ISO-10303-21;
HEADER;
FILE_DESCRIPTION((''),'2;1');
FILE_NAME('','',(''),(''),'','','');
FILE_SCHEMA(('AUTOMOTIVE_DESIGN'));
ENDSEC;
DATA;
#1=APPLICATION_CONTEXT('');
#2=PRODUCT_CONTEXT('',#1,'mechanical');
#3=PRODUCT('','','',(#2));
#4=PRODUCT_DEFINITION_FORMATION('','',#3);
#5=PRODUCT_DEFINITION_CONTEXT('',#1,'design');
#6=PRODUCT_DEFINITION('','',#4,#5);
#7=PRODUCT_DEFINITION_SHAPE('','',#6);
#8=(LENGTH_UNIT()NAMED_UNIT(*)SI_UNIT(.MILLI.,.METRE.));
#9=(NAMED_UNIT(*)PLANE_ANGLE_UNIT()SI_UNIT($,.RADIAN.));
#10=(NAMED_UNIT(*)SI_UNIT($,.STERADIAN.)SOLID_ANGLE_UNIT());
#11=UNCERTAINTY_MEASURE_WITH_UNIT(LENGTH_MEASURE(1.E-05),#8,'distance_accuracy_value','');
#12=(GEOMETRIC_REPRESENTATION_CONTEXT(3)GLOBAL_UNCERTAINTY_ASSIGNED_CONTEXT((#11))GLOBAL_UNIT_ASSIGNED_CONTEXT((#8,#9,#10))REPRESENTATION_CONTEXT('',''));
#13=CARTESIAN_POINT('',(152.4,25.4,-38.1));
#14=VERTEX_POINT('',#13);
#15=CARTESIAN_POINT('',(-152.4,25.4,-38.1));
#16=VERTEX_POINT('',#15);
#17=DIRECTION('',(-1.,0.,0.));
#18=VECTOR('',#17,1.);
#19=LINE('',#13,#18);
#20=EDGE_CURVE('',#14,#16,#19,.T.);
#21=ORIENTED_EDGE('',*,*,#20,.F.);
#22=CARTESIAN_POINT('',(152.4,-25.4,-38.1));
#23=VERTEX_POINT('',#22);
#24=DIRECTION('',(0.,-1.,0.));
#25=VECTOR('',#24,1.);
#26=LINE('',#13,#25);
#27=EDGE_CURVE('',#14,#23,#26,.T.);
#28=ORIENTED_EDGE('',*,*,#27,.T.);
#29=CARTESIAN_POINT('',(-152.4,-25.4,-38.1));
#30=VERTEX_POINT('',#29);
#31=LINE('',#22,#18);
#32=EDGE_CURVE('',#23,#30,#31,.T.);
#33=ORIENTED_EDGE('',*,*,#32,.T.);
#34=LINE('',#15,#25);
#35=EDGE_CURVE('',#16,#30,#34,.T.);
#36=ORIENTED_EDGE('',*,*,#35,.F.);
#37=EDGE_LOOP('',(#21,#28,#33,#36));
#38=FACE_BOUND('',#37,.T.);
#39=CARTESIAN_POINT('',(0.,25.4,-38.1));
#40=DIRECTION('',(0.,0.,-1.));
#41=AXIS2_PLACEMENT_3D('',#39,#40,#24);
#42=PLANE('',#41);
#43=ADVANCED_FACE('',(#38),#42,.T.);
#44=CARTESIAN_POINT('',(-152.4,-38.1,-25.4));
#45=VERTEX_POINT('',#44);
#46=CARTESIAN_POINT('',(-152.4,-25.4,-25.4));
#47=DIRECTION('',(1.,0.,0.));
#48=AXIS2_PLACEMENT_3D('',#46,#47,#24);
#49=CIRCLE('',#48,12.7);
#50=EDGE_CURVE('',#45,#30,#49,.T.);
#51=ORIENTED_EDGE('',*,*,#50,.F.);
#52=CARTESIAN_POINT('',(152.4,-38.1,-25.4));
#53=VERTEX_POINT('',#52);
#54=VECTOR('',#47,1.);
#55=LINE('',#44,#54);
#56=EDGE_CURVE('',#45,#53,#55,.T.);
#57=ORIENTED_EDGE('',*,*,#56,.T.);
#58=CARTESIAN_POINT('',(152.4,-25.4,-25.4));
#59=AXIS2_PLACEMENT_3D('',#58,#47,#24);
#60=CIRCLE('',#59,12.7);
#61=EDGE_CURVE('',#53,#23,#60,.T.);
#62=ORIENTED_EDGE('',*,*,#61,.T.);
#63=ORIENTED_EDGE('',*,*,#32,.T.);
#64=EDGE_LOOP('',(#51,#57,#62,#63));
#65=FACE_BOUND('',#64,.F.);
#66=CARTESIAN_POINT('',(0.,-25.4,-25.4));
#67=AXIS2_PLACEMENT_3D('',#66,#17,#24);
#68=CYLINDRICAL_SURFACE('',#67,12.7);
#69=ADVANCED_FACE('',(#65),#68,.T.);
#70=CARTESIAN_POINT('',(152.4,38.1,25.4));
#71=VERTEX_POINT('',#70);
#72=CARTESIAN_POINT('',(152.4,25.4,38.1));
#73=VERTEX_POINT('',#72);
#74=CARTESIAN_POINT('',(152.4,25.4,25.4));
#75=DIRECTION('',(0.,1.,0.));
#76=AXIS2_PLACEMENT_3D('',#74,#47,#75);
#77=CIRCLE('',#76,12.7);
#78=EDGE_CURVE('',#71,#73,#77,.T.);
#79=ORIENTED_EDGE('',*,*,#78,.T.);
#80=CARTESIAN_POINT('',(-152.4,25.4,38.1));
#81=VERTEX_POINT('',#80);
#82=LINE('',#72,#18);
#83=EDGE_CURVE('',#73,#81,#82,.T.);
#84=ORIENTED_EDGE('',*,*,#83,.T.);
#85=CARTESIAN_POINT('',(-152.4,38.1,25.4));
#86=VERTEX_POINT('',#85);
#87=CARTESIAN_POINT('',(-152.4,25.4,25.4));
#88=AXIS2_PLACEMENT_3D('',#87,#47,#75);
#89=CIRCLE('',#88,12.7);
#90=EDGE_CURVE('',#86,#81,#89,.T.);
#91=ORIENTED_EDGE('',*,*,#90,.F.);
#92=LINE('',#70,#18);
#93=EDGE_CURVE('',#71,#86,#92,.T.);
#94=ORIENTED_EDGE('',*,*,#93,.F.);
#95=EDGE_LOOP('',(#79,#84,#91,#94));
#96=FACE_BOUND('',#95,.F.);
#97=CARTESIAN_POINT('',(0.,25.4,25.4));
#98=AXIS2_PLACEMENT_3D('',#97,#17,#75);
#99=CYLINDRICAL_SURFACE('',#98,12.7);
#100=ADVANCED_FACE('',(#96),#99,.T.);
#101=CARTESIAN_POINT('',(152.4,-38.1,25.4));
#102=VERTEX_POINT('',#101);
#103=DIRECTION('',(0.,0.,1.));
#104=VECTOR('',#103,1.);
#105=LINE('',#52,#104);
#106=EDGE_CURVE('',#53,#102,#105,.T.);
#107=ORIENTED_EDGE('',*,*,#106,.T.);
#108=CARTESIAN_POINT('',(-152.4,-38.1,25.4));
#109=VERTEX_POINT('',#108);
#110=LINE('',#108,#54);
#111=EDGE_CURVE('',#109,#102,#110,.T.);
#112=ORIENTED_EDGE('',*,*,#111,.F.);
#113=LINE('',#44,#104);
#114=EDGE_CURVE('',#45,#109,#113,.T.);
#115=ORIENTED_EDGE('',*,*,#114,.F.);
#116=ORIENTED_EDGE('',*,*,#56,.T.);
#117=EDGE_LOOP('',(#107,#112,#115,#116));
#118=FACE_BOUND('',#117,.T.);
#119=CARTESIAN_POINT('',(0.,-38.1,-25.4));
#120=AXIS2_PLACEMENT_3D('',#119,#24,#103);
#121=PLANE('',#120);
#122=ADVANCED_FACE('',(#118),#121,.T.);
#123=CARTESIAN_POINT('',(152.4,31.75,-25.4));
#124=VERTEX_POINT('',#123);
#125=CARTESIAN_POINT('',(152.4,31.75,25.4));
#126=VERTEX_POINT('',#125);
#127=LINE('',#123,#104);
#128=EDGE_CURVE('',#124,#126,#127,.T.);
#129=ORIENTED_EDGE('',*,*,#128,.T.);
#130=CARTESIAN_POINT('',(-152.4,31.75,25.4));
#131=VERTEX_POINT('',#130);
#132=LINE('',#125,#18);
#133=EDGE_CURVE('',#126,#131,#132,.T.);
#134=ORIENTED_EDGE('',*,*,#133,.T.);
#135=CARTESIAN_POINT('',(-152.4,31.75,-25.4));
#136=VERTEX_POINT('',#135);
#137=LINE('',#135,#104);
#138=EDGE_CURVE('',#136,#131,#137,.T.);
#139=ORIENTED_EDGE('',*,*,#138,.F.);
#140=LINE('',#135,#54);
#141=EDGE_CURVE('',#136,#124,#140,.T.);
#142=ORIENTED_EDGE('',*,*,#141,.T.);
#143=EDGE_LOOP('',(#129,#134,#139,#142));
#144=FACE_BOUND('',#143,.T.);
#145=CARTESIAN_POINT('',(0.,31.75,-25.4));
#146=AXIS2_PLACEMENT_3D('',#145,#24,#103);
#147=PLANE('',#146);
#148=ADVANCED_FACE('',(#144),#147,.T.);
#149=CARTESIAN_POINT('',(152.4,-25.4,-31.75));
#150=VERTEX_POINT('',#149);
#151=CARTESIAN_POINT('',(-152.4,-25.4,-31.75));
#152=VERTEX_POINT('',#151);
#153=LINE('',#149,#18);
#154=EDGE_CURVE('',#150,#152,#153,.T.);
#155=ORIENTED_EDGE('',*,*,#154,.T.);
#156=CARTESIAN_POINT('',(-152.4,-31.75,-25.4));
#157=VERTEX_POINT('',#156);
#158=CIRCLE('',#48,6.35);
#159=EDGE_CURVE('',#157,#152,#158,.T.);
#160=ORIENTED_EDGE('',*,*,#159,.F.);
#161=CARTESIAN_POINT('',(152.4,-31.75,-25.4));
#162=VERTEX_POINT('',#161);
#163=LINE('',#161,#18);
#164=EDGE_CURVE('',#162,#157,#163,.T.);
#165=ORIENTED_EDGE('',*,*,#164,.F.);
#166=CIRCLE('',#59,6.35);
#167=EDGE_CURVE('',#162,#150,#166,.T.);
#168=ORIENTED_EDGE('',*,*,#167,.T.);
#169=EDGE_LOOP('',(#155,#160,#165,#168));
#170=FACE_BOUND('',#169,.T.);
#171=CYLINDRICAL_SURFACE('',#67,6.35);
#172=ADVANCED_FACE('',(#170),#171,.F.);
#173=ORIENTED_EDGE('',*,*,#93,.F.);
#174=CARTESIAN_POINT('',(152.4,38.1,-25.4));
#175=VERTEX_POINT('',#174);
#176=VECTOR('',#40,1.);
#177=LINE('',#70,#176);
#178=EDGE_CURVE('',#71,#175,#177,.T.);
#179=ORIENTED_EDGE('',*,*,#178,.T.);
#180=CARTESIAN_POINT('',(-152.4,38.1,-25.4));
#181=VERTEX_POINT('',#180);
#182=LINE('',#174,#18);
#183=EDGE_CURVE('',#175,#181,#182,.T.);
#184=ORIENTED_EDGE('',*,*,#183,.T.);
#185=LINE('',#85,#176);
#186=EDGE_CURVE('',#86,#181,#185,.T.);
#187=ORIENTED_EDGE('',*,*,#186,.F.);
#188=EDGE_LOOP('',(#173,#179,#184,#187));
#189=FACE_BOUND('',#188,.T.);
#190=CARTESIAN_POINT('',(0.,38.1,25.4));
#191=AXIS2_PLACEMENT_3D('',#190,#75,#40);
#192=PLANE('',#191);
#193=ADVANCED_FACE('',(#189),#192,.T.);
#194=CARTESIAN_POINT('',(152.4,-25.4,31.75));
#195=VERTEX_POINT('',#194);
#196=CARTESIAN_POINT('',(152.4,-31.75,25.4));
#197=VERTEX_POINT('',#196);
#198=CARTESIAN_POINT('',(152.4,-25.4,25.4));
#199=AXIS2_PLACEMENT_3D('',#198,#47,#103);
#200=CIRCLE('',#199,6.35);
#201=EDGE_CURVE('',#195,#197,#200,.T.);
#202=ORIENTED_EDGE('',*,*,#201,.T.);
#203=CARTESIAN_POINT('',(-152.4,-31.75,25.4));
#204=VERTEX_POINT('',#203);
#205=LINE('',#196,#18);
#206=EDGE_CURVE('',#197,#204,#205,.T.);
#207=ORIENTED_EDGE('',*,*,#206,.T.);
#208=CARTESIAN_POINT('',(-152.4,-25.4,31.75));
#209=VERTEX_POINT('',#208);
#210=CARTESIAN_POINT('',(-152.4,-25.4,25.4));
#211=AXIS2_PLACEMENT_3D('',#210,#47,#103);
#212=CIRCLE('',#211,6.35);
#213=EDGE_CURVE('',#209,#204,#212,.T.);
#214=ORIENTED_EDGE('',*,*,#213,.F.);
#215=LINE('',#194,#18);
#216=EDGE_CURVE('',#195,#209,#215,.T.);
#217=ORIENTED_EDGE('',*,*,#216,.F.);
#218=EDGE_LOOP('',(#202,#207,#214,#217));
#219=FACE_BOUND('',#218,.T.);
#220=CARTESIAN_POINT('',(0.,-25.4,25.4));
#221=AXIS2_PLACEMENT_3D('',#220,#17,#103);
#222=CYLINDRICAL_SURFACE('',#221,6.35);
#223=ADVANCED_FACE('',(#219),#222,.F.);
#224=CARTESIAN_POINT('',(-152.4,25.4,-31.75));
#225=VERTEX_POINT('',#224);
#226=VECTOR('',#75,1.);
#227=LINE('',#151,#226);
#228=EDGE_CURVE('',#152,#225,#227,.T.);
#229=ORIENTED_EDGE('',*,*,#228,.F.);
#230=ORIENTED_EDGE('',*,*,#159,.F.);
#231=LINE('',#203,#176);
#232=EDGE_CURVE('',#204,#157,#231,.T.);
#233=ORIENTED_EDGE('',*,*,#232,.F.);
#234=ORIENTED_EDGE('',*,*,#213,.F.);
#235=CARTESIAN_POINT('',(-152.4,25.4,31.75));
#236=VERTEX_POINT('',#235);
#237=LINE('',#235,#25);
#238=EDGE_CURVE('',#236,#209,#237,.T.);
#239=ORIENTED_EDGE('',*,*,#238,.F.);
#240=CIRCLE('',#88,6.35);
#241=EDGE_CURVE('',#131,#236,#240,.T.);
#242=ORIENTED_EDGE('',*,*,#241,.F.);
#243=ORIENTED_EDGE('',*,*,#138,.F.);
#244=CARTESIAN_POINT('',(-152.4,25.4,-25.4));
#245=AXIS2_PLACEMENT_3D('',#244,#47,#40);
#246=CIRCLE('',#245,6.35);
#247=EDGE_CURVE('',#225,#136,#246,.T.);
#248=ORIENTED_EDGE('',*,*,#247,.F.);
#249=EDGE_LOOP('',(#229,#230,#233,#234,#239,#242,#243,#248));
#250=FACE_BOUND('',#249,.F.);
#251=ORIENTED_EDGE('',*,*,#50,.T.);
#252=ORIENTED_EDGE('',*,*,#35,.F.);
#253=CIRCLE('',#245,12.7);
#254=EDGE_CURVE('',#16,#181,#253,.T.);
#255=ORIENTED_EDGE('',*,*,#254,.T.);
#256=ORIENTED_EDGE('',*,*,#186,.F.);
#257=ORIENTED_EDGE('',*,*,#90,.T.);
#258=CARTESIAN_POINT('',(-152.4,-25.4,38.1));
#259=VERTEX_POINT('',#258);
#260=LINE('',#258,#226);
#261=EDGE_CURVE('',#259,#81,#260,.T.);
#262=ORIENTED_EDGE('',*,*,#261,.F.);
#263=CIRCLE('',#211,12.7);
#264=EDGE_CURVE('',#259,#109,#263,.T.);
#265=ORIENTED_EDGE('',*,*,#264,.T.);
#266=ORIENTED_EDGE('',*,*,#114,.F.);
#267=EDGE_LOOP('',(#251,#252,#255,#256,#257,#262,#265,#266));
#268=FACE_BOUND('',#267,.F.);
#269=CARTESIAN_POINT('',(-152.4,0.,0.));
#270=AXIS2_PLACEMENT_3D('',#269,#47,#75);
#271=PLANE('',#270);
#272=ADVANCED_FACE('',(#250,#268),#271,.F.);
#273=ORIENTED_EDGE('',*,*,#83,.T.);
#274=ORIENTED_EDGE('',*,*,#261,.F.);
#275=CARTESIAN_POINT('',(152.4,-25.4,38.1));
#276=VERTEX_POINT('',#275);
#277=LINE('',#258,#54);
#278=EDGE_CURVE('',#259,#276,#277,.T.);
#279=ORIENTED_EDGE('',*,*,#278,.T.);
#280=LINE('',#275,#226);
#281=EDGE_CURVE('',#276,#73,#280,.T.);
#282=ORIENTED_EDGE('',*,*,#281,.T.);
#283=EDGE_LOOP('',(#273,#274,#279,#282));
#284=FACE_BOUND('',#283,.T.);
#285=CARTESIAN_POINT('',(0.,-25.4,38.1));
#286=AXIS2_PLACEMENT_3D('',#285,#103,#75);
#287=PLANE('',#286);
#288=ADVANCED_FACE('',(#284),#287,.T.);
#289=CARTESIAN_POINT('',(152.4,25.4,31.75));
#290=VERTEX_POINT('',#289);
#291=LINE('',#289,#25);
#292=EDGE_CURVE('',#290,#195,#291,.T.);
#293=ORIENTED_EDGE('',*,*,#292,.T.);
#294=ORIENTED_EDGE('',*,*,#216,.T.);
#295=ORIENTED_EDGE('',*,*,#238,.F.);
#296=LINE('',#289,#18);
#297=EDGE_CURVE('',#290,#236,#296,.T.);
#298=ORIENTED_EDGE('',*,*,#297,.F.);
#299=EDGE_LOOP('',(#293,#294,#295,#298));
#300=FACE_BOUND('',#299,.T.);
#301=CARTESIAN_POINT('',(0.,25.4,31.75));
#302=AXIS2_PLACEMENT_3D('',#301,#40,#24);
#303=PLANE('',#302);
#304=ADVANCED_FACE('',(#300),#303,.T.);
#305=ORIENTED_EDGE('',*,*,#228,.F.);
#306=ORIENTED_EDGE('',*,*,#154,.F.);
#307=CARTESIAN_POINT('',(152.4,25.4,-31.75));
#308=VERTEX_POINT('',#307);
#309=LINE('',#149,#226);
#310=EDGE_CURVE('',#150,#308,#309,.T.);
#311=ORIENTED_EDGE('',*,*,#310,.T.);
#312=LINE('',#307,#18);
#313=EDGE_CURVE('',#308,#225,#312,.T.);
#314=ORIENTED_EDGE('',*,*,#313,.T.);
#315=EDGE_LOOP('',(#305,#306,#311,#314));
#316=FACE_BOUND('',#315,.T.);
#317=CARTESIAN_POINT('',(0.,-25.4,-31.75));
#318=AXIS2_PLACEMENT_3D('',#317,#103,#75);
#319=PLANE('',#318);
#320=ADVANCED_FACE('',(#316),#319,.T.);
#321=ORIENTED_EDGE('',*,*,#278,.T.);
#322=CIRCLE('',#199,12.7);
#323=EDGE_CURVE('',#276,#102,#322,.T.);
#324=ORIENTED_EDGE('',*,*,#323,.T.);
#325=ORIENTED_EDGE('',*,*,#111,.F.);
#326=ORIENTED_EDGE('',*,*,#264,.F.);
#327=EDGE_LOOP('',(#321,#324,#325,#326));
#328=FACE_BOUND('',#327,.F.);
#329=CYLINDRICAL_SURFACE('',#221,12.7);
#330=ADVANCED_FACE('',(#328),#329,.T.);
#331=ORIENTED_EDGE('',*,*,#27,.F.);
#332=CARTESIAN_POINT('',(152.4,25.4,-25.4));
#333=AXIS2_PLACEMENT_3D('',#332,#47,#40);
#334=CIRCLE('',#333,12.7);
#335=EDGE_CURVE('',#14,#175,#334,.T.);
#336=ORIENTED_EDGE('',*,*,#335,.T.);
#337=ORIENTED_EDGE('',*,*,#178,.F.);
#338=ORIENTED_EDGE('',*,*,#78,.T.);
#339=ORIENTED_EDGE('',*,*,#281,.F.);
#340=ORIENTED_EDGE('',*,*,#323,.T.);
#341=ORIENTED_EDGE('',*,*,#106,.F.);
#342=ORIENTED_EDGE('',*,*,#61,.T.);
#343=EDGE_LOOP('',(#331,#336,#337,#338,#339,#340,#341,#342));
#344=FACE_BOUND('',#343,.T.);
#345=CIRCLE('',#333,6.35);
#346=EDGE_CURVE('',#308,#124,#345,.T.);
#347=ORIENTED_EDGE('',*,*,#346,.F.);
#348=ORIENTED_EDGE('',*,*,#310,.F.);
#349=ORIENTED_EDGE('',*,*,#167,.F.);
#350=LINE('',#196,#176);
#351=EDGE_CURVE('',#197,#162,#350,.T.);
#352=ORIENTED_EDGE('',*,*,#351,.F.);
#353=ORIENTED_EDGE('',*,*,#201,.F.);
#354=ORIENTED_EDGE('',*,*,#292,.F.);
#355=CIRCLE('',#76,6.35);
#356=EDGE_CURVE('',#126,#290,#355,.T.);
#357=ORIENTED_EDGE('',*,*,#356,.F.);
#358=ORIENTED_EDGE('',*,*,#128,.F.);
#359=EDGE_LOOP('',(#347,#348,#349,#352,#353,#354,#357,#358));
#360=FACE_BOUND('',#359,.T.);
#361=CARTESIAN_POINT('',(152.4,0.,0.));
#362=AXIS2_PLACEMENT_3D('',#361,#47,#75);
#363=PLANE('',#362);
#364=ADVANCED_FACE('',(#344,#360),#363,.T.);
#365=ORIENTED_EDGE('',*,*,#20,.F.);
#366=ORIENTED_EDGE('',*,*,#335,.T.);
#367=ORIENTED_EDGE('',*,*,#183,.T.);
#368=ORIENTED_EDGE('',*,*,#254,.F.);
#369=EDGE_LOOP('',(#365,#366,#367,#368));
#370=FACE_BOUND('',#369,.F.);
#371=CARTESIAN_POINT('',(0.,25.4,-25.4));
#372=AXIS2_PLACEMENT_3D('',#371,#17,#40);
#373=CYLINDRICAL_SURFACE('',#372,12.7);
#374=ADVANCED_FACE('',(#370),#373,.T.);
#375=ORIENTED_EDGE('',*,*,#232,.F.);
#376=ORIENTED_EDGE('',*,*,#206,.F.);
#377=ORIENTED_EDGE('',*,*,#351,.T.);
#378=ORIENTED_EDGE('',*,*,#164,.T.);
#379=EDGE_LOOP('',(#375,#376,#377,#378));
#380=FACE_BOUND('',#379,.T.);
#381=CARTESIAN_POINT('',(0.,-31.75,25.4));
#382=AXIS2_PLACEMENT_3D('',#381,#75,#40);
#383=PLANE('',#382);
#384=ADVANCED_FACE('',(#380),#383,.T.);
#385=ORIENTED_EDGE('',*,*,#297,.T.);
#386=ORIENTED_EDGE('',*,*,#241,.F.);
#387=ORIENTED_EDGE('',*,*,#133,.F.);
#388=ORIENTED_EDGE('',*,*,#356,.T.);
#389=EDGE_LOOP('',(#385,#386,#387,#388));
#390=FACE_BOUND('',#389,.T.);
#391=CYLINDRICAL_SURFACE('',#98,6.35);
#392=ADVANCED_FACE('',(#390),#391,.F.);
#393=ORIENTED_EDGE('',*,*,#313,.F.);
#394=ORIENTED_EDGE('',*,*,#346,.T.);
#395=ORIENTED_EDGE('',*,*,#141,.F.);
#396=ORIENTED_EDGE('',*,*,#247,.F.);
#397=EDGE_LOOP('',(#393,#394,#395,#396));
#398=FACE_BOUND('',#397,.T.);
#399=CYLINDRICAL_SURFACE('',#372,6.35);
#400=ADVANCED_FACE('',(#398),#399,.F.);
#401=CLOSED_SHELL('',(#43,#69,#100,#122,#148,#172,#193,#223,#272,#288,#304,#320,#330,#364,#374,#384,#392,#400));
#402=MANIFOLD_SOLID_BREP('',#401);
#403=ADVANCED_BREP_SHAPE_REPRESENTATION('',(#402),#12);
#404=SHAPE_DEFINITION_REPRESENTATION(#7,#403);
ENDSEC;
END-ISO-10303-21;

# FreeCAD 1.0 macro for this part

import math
import FreeCAD as App
import Part
import Sketcher

V = App.Vector
Q = App.Units.Quantity

doc = App.newDocument("Part")
body = doc.addObject("PartDesign::Body", "Body")

sketch1 = body.newObject("Sketcher::SketchObject", "Sketch")
sketch1.AttachmentSupport = (doc.getObject("YZ_Plane"), [""])
sketch1.MapMode = "FlatFace"
sketch1.addGeometry(Part.LineSegment(V(25, 38, 0), V(-25, 38, 0)), False)
sketch1.addGeometry(Part.ArcOfCircle(Part.Circle(V(-25, 25, 0), V(0, 0, 1), 13), math.radians(90), math.radians(180)), False)
sketch1.addGeometry(Part.LineSegment(V(-38, 25, 0), V(-38, -25, 0)), False)
sketch1.addGeometry(Part.ArcOfCircle(Part.Circle(V(-25, -25, 0), V(0, 0, 1), 13), math.radians(180), math.radians(270)), False)
sketch1.addGeometry(Part.LineSegment(V(-25, -38, 0), V(25, -38, 0)), False)
sketch1.addGeometry(Part.ArcOfCircle(Part.Circle(V(25, -25, 0), V(0, 0, 1), 13), math.radians(-90), math.radians(0)), False)
sketch1.addGeometry(Part.LineSegment(V(38, -25, 0), V(38, 25, 0)), False)
sketch1.addGeometry(Part.ArcOfCircle(Part.Circle(V(25, 25, 0), V(0, 0, 1), 13), math.radians(0), math.radians(90)), False)
sketch1.addGeometry(Part.LineSegment(V(32, 25, 0), V(32, -25, 0)), False)
sketch1.addGeometry(Part.ArcOfCircle(Part.Circle(V(25, -25, 0), V(0, 0, 1), 6), math.radians(-90), math.radians(0)), False)
sketch1.addGeometry(Part.LineSegment(V(25, -32, 0), V(-25, -32, 0)), False)
sketch1.addGeometry(Part.ArcOfCircle(Part.Circle(V(-25, -25, 0), V(0, 0, 1), 6), math.radians(180), math.radians(270)), False)
sketch1.addGeometry(Part.LineSegment(V(-32, -25, 0), V(-32, 25, 0)), False)
sketch1.addGeometry(Part.ArcOfCircle(Part.Circle(V(-25, 25, 0), V(0, 0, 1), 6), math.radians(90), math.radians(180)), False)
sketch1.addGeometry(Part.LineSegment(V(-25, 32, 0), V(25, 32, 0)), False)
sketch1.addGeometry(Part.ArcOfCircle(Part.Circle(V(25, 25, 0), V(0, 0, 1), 6), math.radians(0), math.radians(90)), False)
sketch1.addConstraint(Sketcher.Constraint("Tangent", 0, 2, 1, 1))
sketch1.addConstraint(Sketcher.Constraint("Tangent", 1, 2, 2, 1))
sketch1.addConstraint(Sketcher.Constraint("Tangent", 2, 2, 3, 1))
sketch1.addConstraint(Sketcher.Constraint("Tangent", 3, 2, 4, 1))
sketch1.addConstraint(Sketcher.Constraint("Tangent", 4, 2, 5, 1))
sketch1.addConstraint(Sketcher.Constraint("Tangent", 5, 2, 6, 1))
sketch1.addConstraint(Sketcher.Constraint("Tangent", 6, 2, 7, 1))
sketch1.addConstraint(Sketcher.Constraint("Tangent", 7, 2, 0, 1))
sketch1.addConstraint(Sketcher.Constraint("Tangent", 8, 2, 9, 2))
sketch1.addConstraint(Sketcher.Constraint("Tangent", 9, 1, 10, 1))
sketch1.addConstraint(Sketcher.Constraint("Tangent", 10, 2, 11, 2))
sketch1.addConstraint(Sketcher.Constraint("Tangent", 11, 1, 12, 1))
sketch1.addConstraint(Sketcher.Constraint("Tangent", 12, 2, 13, 2))
sketch1.addConstraint(Sketcher.Constraint("Tangent", 13, 1, 14, 1))
sketch1.addConstraint(Sketcher.Constraint("Tangent", 14, 2, 15, 2))
sketch1.addConstraint(Sketcher.Constraint("Tangent", 15, 1, 8, 1))
sketch1.addConstraint(Sketcher.Constraint("Horizontal", 0))
sketch1.addConstraint(Sketcher.Constraint("Vertical", 2))
sketch1.addConstraint(Sketcher.Constraint("Horizontal", 4))
sketch1.addConstraint(Sketcher.Constraint("Vertical", 6))
sketch1.addConstraint(Sketcher.Constraint("Vertical", 8))
sketch1.addConstraint(Sketcher.Constraint("Horizontal", 10))
sketch1.addConstraint(Sketcher.Constraint("Vertical", 12))
sketch1.addConstraint(Sketcher.Constraint("Horizontal", 14))
sketch1.addConstraint(Sketcher.Constraint("Coincident", 9, 3, 5, 3))
sketch1.addConstraint(Sketcher.Constraint("Coincident", 11, 3, 3, 3))
sketch1.addConstraint(Sketcher.Constraint("Coincident", 13, 3, 1, 3))
sketch1.addConstraint(Sketcher.Constraint("Equal", 1, 3))
sketch1.addConstraint(Sketcher.Constraint("Equal", 3, 5))
sketch1.addConstraint(Sketcher.Constraint("Equal", 5, 7))
sketch1.addConstraint(Sketcher.Constraint("Equal", 13, 15))
sketch1.addConstraint(Sketcher.Constraint("Symmetric", 1, 3, 5, 3, -1, 1))
sketch1.addConstraint(Sketcher.Constraint("Equal", 14, 2))
sketch1.addConstraint(Sketcher.Constraint("Radius", 1, Q("0.5 in")))
sketch1.addConstraint(Sketcher.Constraint("Radius", 9, Q("0.25 in")))
sketch1.addConstraint(Sketcher.Constraint("DistanceX", 0, 2, 0, 1, Q("2 in")))
pad1 = body.newObject("PartDesign::Pad", "Pad")
pad1.Profile = sketch1
pad1.Length = Q("12 in")
pad1.Midplane = True

doc.recompute()
